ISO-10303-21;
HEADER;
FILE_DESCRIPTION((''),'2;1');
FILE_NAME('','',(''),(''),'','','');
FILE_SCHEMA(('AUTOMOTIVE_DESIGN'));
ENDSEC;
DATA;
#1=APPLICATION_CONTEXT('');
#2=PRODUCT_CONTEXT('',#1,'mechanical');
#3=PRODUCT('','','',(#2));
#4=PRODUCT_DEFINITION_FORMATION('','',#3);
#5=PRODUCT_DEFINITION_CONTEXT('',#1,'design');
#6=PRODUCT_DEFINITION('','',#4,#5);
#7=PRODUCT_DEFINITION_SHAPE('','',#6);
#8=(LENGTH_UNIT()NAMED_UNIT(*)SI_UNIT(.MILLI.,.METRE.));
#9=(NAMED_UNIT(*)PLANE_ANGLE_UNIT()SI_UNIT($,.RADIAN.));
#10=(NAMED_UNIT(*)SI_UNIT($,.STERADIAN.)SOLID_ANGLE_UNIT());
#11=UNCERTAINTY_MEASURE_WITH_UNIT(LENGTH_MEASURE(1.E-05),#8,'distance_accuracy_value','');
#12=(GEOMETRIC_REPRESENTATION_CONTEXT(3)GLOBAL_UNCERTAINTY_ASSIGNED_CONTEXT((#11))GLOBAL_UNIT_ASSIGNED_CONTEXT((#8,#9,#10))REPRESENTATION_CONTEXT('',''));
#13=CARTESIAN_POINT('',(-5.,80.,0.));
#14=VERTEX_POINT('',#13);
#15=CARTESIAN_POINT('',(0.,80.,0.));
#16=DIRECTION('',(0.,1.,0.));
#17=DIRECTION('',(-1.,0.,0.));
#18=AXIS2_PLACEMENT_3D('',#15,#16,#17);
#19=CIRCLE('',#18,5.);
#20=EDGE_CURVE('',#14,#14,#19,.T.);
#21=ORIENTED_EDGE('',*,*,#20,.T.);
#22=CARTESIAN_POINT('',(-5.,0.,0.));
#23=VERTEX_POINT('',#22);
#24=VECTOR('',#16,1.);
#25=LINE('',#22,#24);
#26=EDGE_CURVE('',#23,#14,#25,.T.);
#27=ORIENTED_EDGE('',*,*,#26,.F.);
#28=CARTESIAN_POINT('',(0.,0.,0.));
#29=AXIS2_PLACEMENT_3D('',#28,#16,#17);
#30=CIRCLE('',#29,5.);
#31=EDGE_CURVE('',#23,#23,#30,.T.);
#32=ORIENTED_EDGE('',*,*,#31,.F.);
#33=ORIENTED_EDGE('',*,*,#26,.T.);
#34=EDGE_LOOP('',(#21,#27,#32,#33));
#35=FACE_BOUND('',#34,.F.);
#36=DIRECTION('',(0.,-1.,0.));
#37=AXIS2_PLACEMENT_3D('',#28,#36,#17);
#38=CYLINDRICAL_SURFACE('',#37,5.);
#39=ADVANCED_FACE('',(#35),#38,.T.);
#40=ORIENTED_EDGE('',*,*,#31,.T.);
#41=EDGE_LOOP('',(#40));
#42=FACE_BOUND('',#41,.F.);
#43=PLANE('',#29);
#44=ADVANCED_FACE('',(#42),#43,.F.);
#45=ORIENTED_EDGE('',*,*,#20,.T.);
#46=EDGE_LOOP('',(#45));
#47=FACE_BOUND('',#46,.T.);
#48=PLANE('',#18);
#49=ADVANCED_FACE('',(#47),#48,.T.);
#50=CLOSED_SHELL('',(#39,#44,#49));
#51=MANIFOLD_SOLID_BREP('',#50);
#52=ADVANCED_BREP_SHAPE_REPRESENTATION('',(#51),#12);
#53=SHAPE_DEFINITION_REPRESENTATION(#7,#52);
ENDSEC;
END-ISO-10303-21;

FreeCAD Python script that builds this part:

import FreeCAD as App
import Part
import Sketcher

V = App.Vector
Q = App.Units.Quantity

doc = App.newDocument("Part")
params = doc.addObject("Spreadsheet::Sheet", "Params")
for row, (alias, value) in enumerate([
    ("sketch1_diameter", "10 mm"),
    ("pad1_length", "80 mm"),
], start=1):
    params.set(f"A{row}", alias)
    params.set(f"B{row}", "=" + value)
    params.setAlias(f"B{row}", alias)

body = doc.addObject("PartDesign::Body", "Body")

# Sketch on XZ plane
sketch1 = body.newObject("Sketcher::SketchObject", "Sketch")
sketch1.AttachmentSupport = (doc.getObject("XZ_Plane"), [""])
sketch1.MapMode = "FlatFace"
sketch1.addGeometry(Part.Circle(V(0, 0, 0), V(0, 0, 1), 5), False)
sketch1.addConstraint([
    Sketcher.Constraint("Coincident", 0, 3, -1, 1),
    Sketcher.Constraint("Diameter", 0, Q("10 mm")),
])
sketch1.setExpression("Constraints[1]", "Params.sketch1_diameter")
pad1 = body.newObject("PartDesign::Pad", "Pad")
pad1.Profile = sketch1
pad1.setExpression("Length", "Params.pad1_length")
pad1.Reversed = True

doc.recompute()
